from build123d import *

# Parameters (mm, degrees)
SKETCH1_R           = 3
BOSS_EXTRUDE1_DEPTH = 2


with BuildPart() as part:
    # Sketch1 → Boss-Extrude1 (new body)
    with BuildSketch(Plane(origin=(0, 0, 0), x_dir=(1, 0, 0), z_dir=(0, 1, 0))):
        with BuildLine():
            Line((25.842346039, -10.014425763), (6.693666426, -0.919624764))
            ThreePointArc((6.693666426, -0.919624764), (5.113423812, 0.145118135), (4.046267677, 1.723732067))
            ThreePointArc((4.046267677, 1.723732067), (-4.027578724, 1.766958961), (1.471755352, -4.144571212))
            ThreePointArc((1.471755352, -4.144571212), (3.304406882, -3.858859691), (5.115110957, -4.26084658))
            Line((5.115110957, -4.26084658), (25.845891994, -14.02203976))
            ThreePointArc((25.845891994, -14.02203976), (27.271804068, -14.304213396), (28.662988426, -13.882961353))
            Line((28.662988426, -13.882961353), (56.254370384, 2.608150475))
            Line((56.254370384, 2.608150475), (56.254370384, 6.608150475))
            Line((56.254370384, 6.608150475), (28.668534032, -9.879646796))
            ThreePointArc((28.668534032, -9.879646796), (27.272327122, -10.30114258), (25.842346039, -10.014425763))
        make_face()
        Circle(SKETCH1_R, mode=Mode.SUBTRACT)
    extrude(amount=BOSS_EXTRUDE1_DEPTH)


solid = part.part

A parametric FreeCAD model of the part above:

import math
import FreeCAD as App
import Part
import Sketcher
Q = App.Units.Quantity

doc = App.newDocument("Part")
body = doc.addObject("PartDesign::Body", "Body")

# Sketch on XZ plane
sketch1 = doc.addObject("Sketcher::SketchObject", "Sketch")
body.addObject(sketch1)
sketch1.AttachmentSupport = (doc.XZ_Plane, [""])
sketch1.MapMode = "FlatFace"
sketch1.addGeometry([
    Part.LineSegment(App.Vector(25.8, 10, 0), App.Vector(6.7, 0.9, 0)),  # 0
    Part.ArcOfCircle(Part.Circle(App.Vector(8.6, -3.7, 0), App.Vector(0, 0, 1), 5), math.radians(113), math.radians(157)),  # 1
    Part.ArcOfCircle(Part.Circle(App.Vector(0, 0, 0), App.Vector(0, 0, 1), 4.4), math.radians(70), math.radians(337)),  # 2
    Part.ArcOfCircle(Part.Circle(App.Vector(3.1, 8.9, 0), App.Vector(0, 0, 1), 5), math.radians(-110), math.radians(-67)),  # 3
    Part.LineSegment(App.Vector(5.1, 4.3, 0), App.Vector(25.8, 14, 0)),  # 4
    Part.ArcOfCircle(Part.Circle(App.Vector(27.1, 11.3, 0), App.Vector(0, 0, 1), 3), math.radians(59), math.radians(115)),  # 5
    Part.LineSegment(App.Vector(28.7, 13.9, 0), App.Vector(56.3, -2.6, 0)),  # 6
    Part.LineSegment(App.Vector(56.3, -2.6, 0), App.Vector(56.3, -6.6, 0)),  # 7
    Part.LineSegment(App.Vector(56.3, -6.6, 0), App.Vector(28.7, 9.9, 0)),  # 8
    Part.ArcOfCircle(Part.Circle(App.Vector(27.1, 7.3, 0), App.Vector(0, 0, 1), 3), math.radians(59), math.radians(115)),  # 9
    Part.Circle(App.Vector(0, 0, 0), App.Vector(0, 0, 1), 3),  # 10
], False)
sketch1.addConstraint([
    Sketcher.Constraint("Coincident", 0, 2, 1, 1),
    Sketcher.Constraint("Tangent", 1, 2, 2, 2),
    Sketcher.Constraint("Tangent", 2, 1, 3, 1),
    Sketcher.Constraint("Coincident", 3, 2, 4, 1),
    Sketcher.Constraint("Tangent", 4, 2, 5, 2),
    Sketcher.Constraint("Tangent", 5, 1, 6, 1),
    Sketcher.Constraint("Coincident", 6, 2, 7, 1),
    Sketcher.Constraint("Coincident", 7, 2, 8, 1),
    Sketcher.Constraint("Tangent", 8, 2, 9, 1),
    Sketcher.Constraint("Tangent", 9, 2, 0, 1),
    Sketcher.Constraint("Vertical", 7),
    Sketcher.Constraint("Coincident", 2, 3, -1, 1),
    Sketcher.Constraint("Coincident", 10, 3, -1, 1),
    Sketcher.Constraint("Equal", 1, 3),
    Sketcher.Constraint("Equal", 5, 9),
    Sketcher.Constraint("Equal", 9, 10),
    Sketcher.Constraint("Parallel", 6, 8),
    Sketcher.Constraint("Diameter", 10, Q("6 mm")),
    Sketcher.Constraint("Radius", 1, Q("5 mm")),
    Sketcher.Constraint("DistanceY", 7, 2, 7, 1, Q("4 mm")),
    Sketcher.Constraint("Radius", 2, Q("4.398129 mm")),
    Sketcher.Constraint("DistanceY", 1, 3, 9, 3, Q("10.9879 mm")),
    Sketcher.Constraint("DistanceX", 1, 2, 0, 2, Q("2.647399 mm")),
    Sketcher.Constraint("DistanceY", 5, 3, 5, 1, Q("2.575099 mm")),
    Sketcher.Constraint("DistanceY", 6, 2, 9, 3, Q("9.912699 mm")),
    Sketcher.Constraint("Distance", 6, Q("32.144068 mm")),
    Sketcher.Constraint("DistanceX", -1, 1, 9, 3, Q("27.129422 mm")),
    Sketcher.Constraint("DistanceY", -1, 1, 9, 3, Q("7.304548 mm")),
    Sketcher.Constraint("DistanceY", -1, 1, 2, 1, Q("4.144571 mm")),
    Sketcher.Constraint("DistanceX", -1, 1, 3, 2, Q("5.115111 mm")),
])
pad1 = doc.addObject("PartDesign::Pad", "Pad")
body.addObject(pad1)
pad1.Profile = sketch1
pad1.Length = 2
pad1.Reversed = True

doc.recompute()
